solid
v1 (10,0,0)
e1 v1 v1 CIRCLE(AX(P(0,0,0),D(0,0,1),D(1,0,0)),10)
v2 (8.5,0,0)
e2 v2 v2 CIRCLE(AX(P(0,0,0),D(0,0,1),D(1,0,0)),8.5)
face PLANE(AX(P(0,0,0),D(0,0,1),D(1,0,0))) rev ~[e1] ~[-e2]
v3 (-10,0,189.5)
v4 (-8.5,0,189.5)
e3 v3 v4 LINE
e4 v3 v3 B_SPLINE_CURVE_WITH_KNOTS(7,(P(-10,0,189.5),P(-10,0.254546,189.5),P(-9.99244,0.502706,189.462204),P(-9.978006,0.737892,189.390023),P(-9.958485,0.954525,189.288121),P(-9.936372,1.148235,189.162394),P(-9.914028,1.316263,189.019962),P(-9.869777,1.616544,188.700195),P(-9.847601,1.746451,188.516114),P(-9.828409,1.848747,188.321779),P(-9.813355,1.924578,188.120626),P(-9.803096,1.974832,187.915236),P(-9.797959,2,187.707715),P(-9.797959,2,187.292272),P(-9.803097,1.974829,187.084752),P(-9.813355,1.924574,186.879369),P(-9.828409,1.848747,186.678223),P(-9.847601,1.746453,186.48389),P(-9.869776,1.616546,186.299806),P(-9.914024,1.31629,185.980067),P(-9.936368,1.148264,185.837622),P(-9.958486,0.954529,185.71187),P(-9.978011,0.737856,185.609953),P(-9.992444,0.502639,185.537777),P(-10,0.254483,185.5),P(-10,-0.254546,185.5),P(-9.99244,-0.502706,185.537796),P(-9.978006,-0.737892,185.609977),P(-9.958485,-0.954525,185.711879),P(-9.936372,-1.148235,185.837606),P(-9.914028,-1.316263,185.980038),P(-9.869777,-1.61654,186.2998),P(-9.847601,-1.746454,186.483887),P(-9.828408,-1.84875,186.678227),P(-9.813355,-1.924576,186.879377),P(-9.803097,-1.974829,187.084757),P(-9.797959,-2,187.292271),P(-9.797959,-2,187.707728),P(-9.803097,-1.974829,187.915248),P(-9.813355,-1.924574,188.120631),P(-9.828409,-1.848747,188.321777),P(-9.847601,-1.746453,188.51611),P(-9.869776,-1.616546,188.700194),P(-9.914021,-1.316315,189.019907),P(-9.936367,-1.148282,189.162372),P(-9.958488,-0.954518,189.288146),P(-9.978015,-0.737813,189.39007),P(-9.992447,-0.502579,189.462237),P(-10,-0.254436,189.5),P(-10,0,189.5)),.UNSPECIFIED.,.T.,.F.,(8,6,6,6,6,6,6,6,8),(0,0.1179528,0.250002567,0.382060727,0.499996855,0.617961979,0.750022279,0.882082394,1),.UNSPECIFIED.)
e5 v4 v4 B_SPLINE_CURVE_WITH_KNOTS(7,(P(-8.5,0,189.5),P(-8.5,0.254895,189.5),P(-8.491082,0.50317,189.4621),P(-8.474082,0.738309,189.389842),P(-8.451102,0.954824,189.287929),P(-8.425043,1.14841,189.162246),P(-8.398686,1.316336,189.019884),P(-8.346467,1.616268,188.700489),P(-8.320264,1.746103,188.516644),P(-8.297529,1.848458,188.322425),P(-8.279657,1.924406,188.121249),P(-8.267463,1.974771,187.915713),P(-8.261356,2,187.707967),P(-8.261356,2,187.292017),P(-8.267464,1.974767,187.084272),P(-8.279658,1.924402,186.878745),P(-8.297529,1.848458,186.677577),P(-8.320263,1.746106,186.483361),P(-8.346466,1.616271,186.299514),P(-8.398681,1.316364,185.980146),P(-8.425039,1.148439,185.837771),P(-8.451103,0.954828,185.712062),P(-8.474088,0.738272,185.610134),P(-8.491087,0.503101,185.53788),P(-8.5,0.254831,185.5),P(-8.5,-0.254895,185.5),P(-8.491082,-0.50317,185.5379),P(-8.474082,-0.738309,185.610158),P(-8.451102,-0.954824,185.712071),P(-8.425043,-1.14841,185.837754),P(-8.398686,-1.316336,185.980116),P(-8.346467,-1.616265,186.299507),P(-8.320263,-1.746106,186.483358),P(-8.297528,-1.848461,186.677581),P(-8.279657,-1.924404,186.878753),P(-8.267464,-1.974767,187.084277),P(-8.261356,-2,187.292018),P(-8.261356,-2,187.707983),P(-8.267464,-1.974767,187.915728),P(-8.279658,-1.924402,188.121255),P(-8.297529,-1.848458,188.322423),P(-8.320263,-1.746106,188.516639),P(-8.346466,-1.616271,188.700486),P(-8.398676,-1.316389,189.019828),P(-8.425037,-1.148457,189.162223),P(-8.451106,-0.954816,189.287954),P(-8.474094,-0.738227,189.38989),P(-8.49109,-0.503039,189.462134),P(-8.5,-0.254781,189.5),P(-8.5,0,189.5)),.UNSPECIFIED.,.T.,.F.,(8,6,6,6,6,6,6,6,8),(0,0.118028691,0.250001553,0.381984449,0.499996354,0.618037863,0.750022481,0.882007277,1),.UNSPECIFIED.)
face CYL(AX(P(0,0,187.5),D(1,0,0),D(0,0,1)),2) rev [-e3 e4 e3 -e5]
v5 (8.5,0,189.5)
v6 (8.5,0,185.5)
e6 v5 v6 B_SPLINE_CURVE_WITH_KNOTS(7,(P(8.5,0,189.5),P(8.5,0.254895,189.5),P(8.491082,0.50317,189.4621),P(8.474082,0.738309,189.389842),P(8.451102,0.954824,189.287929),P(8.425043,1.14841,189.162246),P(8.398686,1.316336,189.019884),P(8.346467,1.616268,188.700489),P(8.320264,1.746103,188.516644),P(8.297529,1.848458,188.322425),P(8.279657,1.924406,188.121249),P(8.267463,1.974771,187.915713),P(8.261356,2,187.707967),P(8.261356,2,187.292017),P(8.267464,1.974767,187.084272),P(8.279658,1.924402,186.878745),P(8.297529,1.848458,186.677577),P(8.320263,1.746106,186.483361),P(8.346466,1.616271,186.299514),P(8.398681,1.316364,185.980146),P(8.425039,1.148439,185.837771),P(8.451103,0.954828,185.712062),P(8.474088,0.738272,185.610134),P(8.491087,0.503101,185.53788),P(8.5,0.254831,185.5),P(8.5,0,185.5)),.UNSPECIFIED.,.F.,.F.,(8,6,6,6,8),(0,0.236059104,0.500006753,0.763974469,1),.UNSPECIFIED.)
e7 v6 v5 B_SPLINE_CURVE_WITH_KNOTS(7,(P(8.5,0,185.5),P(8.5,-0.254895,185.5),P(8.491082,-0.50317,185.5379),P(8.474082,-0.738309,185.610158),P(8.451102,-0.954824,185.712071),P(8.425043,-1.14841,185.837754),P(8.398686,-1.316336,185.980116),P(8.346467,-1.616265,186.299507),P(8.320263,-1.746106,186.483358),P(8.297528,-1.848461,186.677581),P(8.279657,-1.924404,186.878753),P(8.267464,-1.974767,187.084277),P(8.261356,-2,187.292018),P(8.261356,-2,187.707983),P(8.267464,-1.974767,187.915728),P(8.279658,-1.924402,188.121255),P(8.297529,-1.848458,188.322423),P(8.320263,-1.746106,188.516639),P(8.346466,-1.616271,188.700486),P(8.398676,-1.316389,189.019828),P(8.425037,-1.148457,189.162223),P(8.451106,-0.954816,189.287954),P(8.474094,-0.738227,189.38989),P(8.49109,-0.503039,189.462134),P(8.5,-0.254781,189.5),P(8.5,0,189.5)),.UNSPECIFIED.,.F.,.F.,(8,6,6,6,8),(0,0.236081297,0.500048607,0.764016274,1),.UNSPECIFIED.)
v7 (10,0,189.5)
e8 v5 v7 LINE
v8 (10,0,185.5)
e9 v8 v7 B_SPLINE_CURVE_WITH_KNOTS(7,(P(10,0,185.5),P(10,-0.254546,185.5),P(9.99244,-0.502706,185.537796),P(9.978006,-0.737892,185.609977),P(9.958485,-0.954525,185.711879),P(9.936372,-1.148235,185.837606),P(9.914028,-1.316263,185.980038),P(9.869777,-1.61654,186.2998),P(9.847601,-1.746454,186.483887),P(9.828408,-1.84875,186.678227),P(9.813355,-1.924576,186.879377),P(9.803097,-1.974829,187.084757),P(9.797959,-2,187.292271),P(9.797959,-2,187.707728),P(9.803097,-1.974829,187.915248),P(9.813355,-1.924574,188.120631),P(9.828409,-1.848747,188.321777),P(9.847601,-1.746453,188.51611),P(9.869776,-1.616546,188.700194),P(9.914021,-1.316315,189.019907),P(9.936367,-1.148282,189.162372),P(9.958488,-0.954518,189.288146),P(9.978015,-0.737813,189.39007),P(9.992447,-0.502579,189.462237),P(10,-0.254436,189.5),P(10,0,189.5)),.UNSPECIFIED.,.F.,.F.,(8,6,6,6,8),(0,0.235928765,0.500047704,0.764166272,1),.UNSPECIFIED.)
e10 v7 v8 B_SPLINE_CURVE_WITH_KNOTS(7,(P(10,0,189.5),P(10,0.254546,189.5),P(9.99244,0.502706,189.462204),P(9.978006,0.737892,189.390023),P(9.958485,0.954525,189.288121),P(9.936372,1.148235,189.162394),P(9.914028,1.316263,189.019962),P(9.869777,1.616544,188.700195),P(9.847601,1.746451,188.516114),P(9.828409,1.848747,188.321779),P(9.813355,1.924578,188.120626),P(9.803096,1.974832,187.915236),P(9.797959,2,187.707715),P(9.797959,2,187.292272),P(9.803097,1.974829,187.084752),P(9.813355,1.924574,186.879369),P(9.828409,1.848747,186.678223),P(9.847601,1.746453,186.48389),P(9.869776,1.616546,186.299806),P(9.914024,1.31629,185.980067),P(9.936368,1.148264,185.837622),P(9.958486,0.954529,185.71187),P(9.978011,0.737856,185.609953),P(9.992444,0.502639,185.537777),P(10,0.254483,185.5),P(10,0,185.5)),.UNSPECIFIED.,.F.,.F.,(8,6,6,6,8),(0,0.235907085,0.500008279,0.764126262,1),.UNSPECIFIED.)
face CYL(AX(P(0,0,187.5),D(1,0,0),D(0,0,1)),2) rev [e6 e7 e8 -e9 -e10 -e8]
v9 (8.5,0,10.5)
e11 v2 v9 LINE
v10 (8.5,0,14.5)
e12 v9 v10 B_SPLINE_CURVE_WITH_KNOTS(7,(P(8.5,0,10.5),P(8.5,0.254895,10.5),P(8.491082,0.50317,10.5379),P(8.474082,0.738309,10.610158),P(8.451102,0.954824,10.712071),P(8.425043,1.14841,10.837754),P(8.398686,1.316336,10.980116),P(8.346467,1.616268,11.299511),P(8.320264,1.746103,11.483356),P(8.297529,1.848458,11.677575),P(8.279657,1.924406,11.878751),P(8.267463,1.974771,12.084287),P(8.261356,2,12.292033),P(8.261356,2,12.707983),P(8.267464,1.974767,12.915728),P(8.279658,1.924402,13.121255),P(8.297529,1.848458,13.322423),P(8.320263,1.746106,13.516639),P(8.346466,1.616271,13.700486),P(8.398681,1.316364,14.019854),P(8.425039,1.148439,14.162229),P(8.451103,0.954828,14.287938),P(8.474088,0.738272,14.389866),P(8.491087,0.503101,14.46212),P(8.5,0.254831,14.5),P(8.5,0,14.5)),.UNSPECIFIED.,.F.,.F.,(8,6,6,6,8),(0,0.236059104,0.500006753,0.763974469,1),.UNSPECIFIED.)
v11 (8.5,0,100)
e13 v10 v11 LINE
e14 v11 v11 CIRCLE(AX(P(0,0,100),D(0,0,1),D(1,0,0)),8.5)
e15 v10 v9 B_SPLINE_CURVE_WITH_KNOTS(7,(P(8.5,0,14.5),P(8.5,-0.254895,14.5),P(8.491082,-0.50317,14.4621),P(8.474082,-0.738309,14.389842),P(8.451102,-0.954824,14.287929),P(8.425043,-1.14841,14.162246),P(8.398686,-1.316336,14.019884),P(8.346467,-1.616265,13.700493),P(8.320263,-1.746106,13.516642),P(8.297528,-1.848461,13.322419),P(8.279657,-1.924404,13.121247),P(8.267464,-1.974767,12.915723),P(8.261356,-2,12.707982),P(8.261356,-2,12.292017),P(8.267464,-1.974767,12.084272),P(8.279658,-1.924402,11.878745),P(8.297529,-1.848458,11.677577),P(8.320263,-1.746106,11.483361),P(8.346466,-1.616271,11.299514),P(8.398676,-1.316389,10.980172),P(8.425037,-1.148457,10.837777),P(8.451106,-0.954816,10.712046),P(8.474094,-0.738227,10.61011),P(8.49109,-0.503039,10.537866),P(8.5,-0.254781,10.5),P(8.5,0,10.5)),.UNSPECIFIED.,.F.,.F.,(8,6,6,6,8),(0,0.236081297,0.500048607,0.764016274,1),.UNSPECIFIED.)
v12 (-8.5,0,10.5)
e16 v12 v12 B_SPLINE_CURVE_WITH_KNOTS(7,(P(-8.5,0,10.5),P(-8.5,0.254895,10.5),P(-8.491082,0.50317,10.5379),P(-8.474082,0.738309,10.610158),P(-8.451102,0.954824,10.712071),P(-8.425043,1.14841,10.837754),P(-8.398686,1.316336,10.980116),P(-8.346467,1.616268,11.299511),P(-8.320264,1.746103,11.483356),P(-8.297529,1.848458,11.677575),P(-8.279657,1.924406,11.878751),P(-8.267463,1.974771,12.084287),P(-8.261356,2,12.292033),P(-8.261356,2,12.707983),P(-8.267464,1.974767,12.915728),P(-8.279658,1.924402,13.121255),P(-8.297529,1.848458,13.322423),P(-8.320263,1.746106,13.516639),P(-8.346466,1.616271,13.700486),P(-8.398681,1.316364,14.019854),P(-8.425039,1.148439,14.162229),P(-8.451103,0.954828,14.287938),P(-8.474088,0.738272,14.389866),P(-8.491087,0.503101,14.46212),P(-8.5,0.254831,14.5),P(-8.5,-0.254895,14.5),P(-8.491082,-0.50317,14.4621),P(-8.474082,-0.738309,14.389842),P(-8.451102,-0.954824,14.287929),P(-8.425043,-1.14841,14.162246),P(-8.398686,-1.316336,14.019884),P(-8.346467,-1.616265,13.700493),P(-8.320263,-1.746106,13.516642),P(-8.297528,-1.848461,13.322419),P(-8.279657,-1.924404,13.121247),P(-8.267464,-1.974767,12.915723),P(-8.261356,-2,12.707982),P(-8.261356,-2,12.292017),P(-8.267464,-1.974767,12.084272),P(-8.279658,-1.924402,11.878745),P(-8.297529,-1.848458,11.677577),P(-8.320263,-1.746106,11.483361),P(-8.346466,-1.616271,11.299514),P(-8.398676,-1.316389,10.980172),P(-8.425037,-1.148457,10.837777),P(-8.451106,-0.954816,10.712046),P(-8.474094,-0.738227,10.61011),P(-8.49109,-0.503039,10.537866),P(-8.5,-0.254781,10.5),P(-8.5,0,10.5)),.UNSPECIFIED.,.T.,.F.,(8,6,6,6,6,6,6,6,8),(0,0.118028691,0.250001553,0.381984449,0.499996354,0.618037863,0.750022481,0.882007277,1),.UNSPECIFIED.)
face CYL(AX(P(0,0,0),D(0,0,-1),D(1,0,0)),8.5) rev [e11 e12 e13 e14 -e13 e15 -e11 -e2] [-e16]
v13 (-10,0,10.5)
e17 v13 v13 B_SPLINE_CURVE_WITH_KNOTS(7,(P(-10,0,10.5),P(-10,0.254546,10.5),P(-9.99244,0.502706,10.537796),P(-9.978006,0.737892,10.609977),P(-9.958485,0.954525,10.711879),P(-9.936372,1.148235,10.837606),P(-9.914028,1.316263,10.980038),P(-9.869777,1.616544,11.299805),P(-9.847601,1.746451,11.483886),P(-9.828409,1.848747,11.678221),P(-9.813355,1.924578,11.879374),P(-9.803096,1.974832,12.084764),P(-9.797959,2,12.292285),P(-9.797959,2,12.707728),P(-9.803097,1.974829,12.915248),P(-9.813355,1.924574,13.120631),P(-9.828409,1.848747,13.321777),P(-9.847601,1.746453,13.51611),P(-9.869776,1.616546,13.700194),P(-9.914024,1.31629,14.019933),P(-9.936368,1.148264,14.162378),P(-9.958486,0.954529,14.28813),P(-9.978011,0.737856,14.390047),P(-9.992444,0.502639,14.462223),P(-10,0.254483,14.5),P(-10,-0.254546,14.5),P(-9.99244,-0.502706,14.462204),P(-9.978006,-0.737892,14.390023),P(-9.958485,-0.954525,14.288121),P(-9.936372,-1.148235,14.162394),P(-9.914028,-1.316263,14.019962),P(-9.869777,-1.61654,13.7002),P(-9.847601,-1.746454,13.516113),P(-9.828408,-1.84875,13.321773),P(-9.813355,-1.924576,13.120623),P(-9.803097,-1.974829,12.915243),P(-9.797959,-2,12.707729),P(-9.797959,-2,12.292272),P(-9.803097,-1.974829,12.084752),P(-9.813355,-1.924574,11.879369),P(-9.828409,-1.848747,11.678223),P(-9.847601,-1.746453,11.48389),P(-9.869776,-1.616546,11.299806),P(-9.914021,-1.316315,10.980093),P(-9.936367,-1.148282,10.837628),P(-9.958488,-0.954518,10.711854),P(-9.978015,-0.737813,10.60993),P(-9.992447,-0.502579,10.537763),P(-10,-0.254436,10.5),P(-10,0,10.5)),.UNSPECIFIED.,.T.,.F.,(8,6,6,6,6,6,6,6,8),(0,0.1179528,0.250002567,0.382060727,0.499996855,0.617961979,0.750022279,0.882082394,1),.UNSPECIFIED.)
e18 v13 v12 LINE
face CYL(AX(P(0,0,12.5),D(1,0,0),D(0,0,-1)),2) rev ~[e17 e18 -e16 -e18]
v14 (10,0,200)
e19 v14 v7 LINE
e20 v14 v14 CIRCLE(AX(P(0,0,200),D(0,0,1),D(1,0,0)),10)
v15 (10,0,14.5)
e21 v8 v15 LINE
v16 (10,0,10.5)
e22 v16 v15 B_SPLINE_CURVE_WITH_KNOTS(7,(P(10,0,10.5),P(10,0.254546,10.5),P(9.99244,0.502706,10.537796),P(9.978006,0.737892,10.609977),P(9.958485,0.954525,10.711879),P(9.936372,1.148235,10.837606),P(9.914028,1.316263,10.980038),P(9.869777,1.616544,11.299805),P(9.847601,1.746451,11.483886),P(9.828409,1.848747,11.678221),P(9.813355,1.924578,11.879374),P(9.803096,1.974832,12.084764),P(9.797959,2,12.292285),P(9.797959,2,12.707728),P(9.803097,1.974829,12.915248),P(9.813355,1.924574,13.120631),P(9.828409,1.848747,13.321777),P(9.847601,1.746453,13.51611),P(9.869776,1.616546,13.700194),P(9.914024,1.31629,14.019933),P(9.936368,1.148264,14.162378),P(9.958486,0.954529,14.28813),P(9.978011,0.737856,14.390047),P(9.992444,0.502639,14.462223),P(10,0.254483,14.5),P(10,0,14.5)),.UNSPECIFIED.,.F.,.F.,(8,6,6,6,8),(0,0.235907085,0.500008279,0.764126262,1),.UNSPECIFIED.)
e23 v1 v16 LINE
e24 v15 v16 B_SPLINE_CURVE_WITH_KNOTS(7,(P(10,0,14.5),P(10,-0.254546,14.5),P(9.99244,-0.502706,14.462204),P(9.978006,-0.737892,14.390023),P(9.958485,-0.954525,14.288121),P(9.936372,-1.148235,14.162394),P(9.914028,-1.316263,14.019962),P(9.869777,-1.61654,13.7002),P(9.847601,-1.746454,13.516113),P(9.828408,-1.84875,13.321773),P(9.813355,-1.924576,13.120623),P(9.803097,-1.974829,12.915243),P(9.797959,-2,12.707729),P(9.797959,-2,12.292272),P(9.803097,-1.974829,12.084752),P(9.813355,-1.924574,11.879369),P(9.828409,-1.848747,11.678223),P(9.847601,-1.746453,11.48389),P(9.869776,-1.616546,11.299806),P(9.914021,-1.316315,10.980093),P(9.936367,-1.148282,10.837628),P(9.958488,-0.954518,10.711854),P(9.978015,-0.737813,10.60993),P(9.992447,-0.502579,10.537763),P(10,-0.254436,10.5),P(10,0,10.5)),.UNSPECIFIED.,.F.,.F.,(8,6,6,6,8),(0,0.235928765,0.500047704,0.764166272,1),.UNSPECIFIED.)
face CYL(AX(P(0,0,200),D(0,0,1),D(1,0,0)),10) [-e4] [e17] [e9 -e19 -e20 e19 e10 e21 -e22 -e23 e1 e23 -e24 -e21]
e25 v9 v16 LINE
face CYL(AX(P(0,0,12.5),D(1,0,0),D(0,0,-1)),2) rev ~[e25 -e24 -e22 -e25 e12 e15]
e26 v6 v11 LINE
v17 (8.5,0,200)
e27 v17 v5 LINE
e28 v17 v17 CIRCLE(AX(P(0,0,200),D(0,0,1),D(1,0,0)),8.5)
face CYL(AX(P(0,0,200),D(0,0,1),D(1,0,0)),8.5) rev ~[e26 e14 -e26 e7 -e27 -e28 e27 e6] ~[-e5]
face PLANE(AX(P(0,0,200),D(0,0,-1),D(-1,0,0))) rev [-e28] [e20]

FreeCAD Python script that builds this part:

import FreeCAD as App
import Part
import Sketcher
from FreeCAD import Vector
Q = App.Units.Quantity

doc = App.newDocument("Part")
body = doc.addObject("PartDesign::Body", "Body")

sketch1 = body.newObject("Sketcher::SketchObject", "Sketch")
sketch1.AttachmentSupport = (doc.getObject("XY_Plane"), [""])
sketch1.MapMode = "FlatFace"
sketch1.addGeometry(Part.Circle(Vector(0, 0, 0), Vector(0, 0, 1), 10), False)
sketch1.addGeometry(Part.Circle(Vector(0, 0, 0), Vector(0, 0, 1), 8), False)
sketch1.addConstraint(Sketcher.Constraint("Coincident", 0, 3, -1, 1))
sketch1.addConstraint(Sketcher.Constraint("Coincident", 1, 3, -1, 1))
sketch1.addConstraint(Sketcher.Constraint("Diameter", 0, Q("20 mm")))
sketch1.addConstraint(Sketcher.Constraint("Diameter", 1, Q("17 mm")))
pad1 = body.newObject("PartDesign::Pad", "Pad")
pad1.Profile = sketch1
pad1.Length = 100

sketch2 = body.newObject("Sketcher::SketchObject", "Sketch001")
sketch2.AttachmentSupport = (doc.getObject("YZ_Plane"), [""])
sketch2.MapMode = "FlatFace"
sketch2.addGeometry(Part.Circle(Vector(0, 12.5, 0), Vector(0, 0, 1), 2), False)
sketch2.addConstraint(Sketcher.Constraint("PointOnObject", 0, 3, -2))
sketch2.addConstraint(Sketcher.Constraint("Diameter", 0, Q("4 mm")))
sketch2.addConstraint(Sketcher.Constraint("DistanceY", -1, 1, 0, 3, Q("12.5 mm")))
pocket1 = body.newObject("PartDesign::Pocket", "Pocket")
pocket1.Profile = sketch2
pocket1.Length = 203.990099
pocket1.Midplane = True
doc.recompute()

datumplane = body.newObject("PartDesign::Plane", "DatumPlane")
datumplane.AttachmentSupport = (doc.getObject("XY_Plane"), [""])
datumplane.MapMode = "FlatFace"
datumplane.AttachmentOffset = App.Placement(Vector(0, 0, 100), App.Rotation())
mirrored = body.newObject("PartDesign::Mirrored", "Mirrored")
mirrored.Originals = [pad1, pocket1]
mirrored.MirrorPlane = (datumplane, [""])
body.Tip = mirrored

doc.recompute()
